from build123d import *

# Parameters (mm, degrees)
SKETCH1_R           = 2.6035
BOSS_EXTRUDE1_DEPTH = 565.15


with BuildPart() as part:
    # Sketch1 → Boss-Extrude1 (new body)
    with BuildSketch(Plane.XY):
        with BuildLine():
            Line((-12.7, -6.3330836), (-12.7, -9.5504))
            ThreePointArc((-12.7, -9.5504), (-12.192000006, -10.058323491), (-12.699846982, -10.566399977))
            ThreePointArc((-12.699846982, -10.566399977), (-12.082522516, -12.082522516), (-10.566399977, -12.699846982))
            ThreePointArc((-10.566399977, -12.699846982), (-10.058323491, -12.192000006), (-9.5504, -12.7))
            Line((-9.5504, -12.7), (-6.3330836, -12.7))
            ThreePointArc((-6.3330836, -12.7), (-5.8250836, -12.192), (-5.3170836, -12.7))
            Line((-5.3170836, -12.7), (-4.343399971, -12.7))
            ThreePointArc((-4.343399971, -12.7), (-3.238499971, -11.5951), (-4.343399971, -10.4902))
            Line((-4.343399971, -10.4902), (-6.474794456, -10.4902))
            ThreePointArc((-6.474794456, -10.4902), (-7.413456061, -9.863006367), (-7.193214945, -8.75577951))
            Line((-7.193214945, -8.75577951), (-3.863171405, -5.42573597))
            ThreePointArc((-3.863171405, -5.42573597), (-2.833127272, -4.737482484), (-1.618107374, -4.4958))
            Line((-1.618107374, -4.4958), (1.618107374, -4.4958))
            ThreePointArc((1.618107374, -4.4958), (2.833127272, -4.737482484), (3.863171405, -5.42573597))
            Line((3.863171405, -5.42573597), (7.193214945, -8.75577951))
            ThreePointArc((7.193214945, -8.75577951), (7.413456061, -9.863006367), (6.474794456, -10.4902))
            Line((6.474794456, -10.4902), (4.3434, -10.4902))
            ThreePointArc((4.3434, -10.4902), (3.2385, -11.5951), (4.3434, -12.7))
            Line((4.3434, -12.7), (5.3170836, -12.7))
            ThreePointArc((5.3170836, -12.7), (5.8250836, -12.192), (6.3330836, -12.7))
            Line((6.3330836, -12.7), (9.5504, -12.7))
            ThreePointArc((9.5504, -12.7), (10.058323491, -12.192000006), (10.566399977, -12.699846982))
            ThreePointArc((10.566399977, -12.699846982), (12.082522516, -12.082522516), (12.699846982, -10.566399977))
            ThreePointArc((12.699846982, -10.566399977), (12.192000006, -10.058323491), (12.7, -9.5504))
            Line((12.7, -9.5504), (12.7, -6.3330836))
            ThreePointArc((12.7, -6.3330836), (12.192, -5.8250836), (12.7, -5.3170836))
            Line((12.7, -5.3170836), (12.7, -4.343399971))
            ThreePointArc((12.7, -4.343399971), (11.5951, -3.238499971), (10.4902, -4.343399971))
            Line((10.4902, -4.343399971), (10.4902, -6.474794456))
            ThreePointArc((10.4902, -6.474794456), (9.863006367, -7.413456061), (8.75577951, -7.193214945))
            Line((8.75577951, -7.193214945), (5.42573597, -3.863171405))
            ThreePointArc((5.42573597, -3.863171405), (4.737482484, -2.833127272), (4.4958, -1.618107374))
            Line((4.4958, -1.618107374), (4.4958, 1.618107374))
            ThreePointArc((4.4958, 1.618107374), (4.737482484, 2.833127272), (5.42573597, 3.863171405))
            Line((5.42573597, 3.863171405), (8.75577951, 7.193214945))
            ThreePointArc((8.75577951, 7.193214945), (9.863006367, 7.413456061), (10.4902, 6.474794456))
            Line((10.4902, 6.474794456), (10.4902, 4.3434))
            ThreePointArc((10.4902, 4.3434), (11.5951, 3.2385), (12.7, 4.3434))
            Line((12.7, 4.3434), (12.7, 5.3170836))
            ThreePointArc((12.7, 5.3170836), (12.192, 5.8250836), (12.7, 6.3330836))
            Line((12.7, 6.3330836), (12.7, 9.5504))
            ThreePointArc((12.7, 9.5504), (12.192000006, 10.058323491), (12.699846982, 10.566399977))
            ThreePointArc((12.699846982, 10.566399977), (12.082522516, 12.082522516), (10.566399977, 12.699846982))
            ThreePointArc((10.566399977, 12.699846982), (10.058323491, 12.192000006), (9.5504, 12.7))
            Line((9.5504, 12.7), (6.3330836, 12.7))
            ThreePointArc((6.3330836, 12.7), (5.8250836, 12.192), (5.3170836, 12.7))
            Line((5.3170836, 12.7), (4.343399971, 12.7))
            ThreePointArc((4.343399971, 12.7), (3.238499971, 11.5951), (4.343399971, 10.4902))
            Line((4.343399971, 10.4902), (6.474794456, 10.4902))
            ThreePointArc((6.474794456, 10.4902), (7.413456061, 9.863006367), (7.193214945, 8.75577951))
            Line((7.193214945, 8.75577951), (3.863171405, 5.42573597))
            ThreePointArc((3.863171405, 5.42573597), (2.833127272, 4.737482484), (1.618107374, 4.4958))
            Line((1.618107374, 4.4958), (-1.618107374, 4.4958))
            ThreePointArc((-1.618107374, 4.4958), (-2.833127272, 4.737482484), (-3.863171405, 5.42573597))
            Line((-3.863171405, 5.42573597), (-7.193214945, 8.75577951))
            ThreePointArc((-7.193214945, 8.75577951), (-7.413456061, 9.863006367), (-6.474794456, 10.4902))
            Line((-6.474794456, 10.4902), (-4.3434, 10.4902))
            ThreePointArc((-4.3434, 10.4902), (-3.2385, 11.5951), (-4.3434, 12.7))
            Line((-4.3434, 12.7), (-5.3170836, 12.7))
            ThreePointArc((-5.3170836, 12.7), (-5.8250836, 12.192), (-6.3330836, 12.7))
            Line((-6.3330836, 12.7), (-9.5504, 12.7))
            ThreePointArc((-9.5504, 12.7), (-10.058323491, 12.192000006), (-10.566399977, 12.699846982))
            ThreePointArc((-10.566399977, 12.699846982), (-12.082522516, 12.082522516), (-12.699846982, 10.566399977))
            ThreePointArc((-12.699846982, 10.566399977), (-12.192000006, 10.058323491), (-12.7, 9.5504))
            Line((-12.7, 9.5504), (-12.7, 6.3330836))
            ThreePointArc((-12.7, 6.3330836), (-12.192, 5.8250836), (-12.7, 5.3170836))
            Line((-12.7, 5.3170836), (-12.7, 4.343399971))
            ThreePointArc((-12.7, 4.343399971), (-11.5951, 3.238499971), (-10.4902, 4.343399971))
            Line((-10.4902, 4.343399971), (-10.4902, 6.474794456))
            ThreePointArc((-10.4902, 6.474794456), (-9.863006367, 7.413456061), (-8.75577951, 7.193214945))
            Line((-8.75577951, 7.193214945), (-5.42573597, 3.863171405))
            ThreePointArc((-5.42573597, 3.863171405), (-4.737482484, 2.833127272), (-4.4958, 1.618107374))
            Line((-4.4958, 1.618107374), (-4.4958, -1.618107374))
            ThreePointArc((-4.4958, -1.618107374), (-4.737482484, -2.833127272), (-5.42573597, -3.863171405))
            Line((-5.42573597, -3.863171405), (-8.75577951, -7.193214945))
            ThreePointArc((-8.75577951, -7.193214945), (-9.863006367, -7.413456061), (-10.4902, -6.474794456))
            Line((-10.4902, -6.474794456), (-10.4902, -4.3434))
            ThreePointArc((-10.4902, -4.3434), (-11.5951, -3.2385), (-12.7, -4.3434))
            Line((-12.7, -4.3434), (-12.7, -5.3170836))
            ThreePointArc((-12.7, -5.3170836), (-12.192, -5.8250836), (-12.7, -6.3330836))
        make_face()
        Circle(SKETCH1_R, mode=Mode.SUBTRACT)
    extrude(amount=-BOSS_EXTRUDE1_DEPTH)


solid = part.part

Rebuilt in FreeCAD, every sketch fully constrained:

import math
import FreeCAD as App
import Part
import Sketcher

V = App.Vector
Q = App.Units.Quantity

doc = App.newDocument("Part")
body = doc.addObject("PartDesign::Body", "Body")

sketch1 = body.newObject("Sketcher::SketchObject", "Sketch")
sketch1.AttachmentSupport = (doc.getObject("XY_Plane"), [""])
sketch1.MapMode = "FlatFace"
sketch1.addGeometry([
    Part.LineSegment(V(-12.7, -6.333084, 0), V(-12.7, -9.5504, 0)),
    Part.ArcOfCircle(Part.Circle(V(-12.7, -10.0584, 0), V(0, 0, 1), 0.508), math.radians(-89.982742), math.radians(90)),
    Part.ArcOfCircle(Part.Circle(V(-10.5918, -10.5918, 0), V(0, 0, 1), 2.1082), math.radians(179.309672), math.radians(270.690328)),
    Part.ArcOfCircle(Part.Circle(V(-10.0584, -12.7, 0), V(0, 0, 1), 0.508), math.radians(0), math.radians(179.982742)),
    Part.LineSegment(V(-9.5504, -12.7, 0), V(-6.333084, -12.7, 0)),
    Part.ArcOfCircle(Part.Circle(V(-5.825084, -12.7, 0), V(0, 0, 1), 0.508), math.radians(0), math.radians(180)),
    Part.LineSegment(V(-5.317084, -12.7, 0), V(-4.3434, -12.7, 0)),
    Part.ArcOfCircle(Part.Circle(V(-4.3434, -11.5951, 0), V(0, 0, 1), 1.1049), math.radians(-90), math.radians(90)),
    Part.LineSegment(V(-4.3434, -10.4902, 0), V(-6.474794, -10.4902, 0)),
    Part.ArcOfCircle(Part.Circle(V(-6.474794, -9.4742, 0), V(0, 0, 1), 1.016), math.radians(135), math.radians(270)),
    Part.LineSegment(V(-7.193215, -8.75578, 0), V(-3.863171, -5.425736, 0)),
    Part.ArcOfCircle(Part.Circle(V(-1.618107, -7.6708, 0), V(0, 0, 1), 3.175), math.radians(90), math.radians(135)),
    Part.LineSegment(V(-1.618107, -4.4958, 0), V(1.618107, -4.4958, 0)),
    Part.ArcOfCircle(Part.Circle(V(1.618107, -7.6708, 0), V(0, 0, 1), 3.175), math.radians(45), math.radians(90)),
    Part.LineSegment(V(3.863171, -5.425736, 0), V(7.193215, -8.75578, 0)),
    Part.ArcOfCircle(Part.Circle(V(6.474794, -9.4742, 0), V(0, 0, 1), 1.016), math.radians(-90), math.radians(45)),
    Part.LineSegment(V(6.474794, -10.4902, 0), V(4.3434, -10.4902, 0)),
    Part.ArcOfCircle(Part.Circle(V(4.3434, -11.5951, 0), V(0, 0, 1), 1.1049), math.radians(90), math.radians(270)),
    Part.LineSegment(V(4.3434, -12.7, 0), V(5.317084, -12.7, 0)),
    Part.ArcOfCircle(Part.Circle(V(5.825084, -12.7, 0), V(0, 0, 1), 0.508), math.radians(0), math.radians(180)),
    Part.LineSegment(V(6.333084, -12.7, 0), V(9.5504, -12.7, 0)),
    Part.ArcOfCircle(Part.Circle(V(10.0584, -12.7, 0), V(0, 0, 1), 0.508), math.radians(0.017258), math.radians(180)),
    Part.ArcOfCircle(Part.Circle(V(10.5918, -10.5918, 0), V(0, 0, 1), 2.1082), math.radians(-90.690328), math.radians(0.690328)),
    Part.ArcOfCircle(Part.Circle(V(12.7, -10.0584, 0), V(0, 0, 1), 0.508), math.radians(90), math.radians(269.982742)),
    Part.LineSegment(V(12.7, -9.5504, 0), V(12.7, -6.333084, 0)),
    Part.ArcOfCircle(Part.Circle(V(12.7, -5.825084, 0), V(0, 0, 1), 0.508), math.radians(90), math.radians(270)),
    Part.LineSegment(V(12.7, -5.317084, 0), V(12.7, -4.3434, 0)),
    Part.ArcOfCircle(Part.Circle(V(11.5951, -4.3434, 0), V(0, 0, 1), 1.1049), math.radians(0), math.radians(180)),
    Part.LineSegment(V(10.4902, -4.3434, 0), V(10.4902, -6.474794, 0)),
    Part.ArcOfCircle(Part.Circle(V(9.4742, -6.474794, 0), V(0, 0, 1), 1.016), math.radians(-135), math.radians(0)),
    Part.LineSegment(V(8.75578, -7.193215, 0), V(5.425736, -3.863171, 0)),
    Part.ArcOfCircle(Part.Circle(V(7.6708, -1.618107, 0), V(0, 0, 1), 3.175), math.radians(180), math.radians(225)),
    Part.LineSegment(V(4.4958, -1.618107, 0), V(4.4958, 1.618107, 0)),
    Part.ArcOfCircle(Part.Circle(V(7.6708, 1.618107, 0), V(0, 0, 1), 3.175), math.radians(135), math.radians(180)),
    Part.LineSegment(V(5.425736, 3.863171, 0), V(8.75578, 7.193215, 0)),
    Part.ArcOfCircle(Part.Circle(V(9.4742, 6.474794, 0), V(0, 0, 1), 1.016), math.radians(0), math.radians(135)),
    Part.LineSegment(V(10.4902, 6.474794, 0), V(10.4902, 4.3434, 0)),
    Part.ArcOfCircle(Part.Circle(V(11.5951, 4.3434, 0), V(0, 0, 1), 1.1049), math.radians(180), math.radians(360)),
    Part.LineSegment(V(12.7, 4.3434, 0), V(12.7, 5.317084, 0)),
    Part.ArcOfCircle(Part.Circle(V(12.7, 5.825084, 0), V(0, 0, 1), 0.508), math.radians(90), math.radians(270)),
    Part.LineSegment(V(12.7, 6.333084, 0), V(12.7, 9.5504, 0)),
    Part.ArcOfCircle(Part.Circle(V(12.7, 10.0584, 0), V(0, 0, 1), 0.508), math.radians(90.017258), math.radians(270)),
    Part.ArcOfCircle(Part.Circle(V(10.5918, 10.5918, 0), V(0, 0, 1), 2.1082), math.radians(-0.690328), math.radians(90.690328)),
    Part.ArcOfCircle(Part.Circle(V(10.0584, 12.7, 0), V(0, 0, 1), 0.508), math.radians(180), math.radians(359.982742)),
    Part.LineSegment(V(9.5504, 12.7, 0), V(6.333084, 12.7, 0)),
    Part.ArcOfCircle(Part.Circle(V(5.825084, 12.7, 0), V(0, 0, 1), 0.508), math.radians(180), math.radians(360)),
    Part.LineSegment(V(5.317084, 12.7, 0), V(4.3434, 12.7, 0)),
    Part.ArcOfCircle(Part.Circle(V(4.3434, 11.5951, 0), V(0, 0, 1), 1.1049), math.radians(90), math.radians(270)),
    Part.LineSegment(V(4.3434, 10.4902, 0), V(6.474794, 10.4902, 0)),
    Part.ArcOfCircle(Part.Circle(V(6.474794, 9.4742, 0), V(0, 0, 1), 1.016), math.radians(-45), math.radians(90)),
    Part.LineSegment(V(7.193215, 8.75578, 0), V(3.863171, 5.425736, 0)),
    Part.ArcOfCircle(Part.Circle(V(1.618107, 7.6708, 0), V(0, 0, 1), 3.175), math.radians(-90), math.radians(-45)),
    Part.LineSegment(V(1.618107, 4.4958, 0), V(-1.618107, 4.4958, 0)),
    Part.ArcOfCircle(Part.Circle(V(-1.618107, 7.6708, 0), V(0, 0, 1), 3.175), math.radians(-135), math.radians(-90)),
    Part.LineSegment(V(-3.863171, 5.425736, 0), V(-7.193215, 8.75578, 0)),
    Part.ArcOfCircle(Part.Circle(V(-6.474794, 9.4742, 0), V(0, 0, 1), 1.016), math.radians(90), math.radians(225)),
    Part.LineSegment(V(-6.474794, 10.4902, 0), V(-4.3434, 10.4902, 0)),
    Part.ArcOfCircle(Part.Circle(V(-4.3434, 11.5951, 0), V(0, 0, 1), 1.1049), math.radians(-90), math.radians(90)),
    Part.LineSegment(V(-4.3434, 12.7, 0), V(-5.317084, 12.7, 0)),
    Part.ArcOfCircle(Part.Circle(V(-5.825084, 12.7, 0), V(0, 0, 1), 0.508), math.radians(180), math.radians(360)),
    Part.LineSegment(V(-6.333084, 12.7, 0), V(-9.5504, 12.7, 0)),
    Part.ArcOfCircle(Part.Circle(V(-10.0584, 12.7, 0), V(0, 0, 1), 0.508), math.radians(-179.982742), math.radians(0)),
    Part.ArcOfCircle(Part.Circle(V(-10.5918, 10.5918, 0), V(0, 0, 1), 2.1082), math.radians(89.309672), math.radians(180.690328)),
    Part.ArcOfCircle(Part.Circle(V(-12.7, 10.0584, 0), V(0, 0, 1), 0.508), math.radians(-90), math.radians(89.982742)),
    Part.LineSegment(V(-12.7, 9.5504, 0), V(-12.7, 6.333084, 0)),
    Part.ArcOfCircle(Part.Circle(V(-12.7, 5.825084, 0), V(0, 0, 1), 0.508), math.radians(-90), math.radians(90)),
    Part.LineSegment(V(-12.7, 5.317084, 0), V(-12.7, 4.3434, 0)),
    Part.ArcOfCircle(Part.Circle(V(-11.5951, 4.3434, 0), V(0, 0, 1), 1.1049), math.radians(180), math.radians(360)),
    Part.LineSegment(V(-10.4902, 4.3434, 0), V(-10.4902, 6.474794, 0)),
    Part.ArcOfCircle(Part.Circle(V(-9.4742, 6.474794, 0), V(0, 0, 1), 1.016), math.radians(45), math.radians(180)),
    Part.LineSegment(V(-8.75578, 7.193215, 0), V(-5.425736, 3.863171, 0)),
    Part.ArcOfCircle(Part.Circle(V(-7.6708, 1.618107, 0), V(0, 0, 1), 3.175), math.radians(0), math.radians(45)),
    Part.LineSegment(V(-4.4958, 1.618107, 0), V(-4.4958, -1.618107, 0)),
    Part.ArcOfCircle(Part.Circle(V(-7.6708, -1.618107, 0), V(0, 0, 1), 3.175), math.radians(-45), math.radians(0)),
    Part.LineSegment(V(-5.425736, -3.863171, 0), V(-8.75578, -7.193215, 0)),
    Part.ArcOfCircle(Part.Circle(V(-9.4742, -6.474794, 0), V(0, 0, 1), 1.016), math.radians(180), math.radians(315)),
    Part.LineSegment(V(-10.4902, -6.474794, 0), V(-10.4902, -4.3434, 0)),
    Part.ArcOfCircle(Part.Circle(V(-11.5951, -4.3434, 0), V(0, 0, 1), 1.1049), math.radians(0), math.radians(180)),
    Part.LineSegment(V(-12.7, -4.3434, 0), V(-12.7, -5.317084, 0)),
    Part.ArcOfCircle(Part.Circle(V(-12.7, -5.825084, 0), V(0, 0, 1), 0.508), math.radians(-90), math.radians(90)),
    Part.Circle(V(0, 0, 0), V(0, 0, 1), 2.6035),
], False)
sketch1.addConstraint([
    Sketcher.Constraint("Coincident", 0, 2, 1, 2),
    Sketcher.Constraint("Coincident", 1, 1, 2, 1),
    Sketcher.Constraint("Coincident", 2, 2, 3, 2),
    Sketcher.Constraint("Coincident", 3, 1, 4, 1),
    Sketcher.Constraint("Coincident", 4, 2, 5, 2),
    Sketcher.Constraint("Coincident", 5, 1, 6, 1),
    Sketcher.Constraint("Tangent", 6, 2, 7, 1),
    Sketcher.Constraint("Tangent", 7, 2, 8, 1),
    Sketcher.Constraint("Tangent", 8, 2, 9, 2),
    Sketcher.Constraint("Tangent", 9, 1, 10, 1),
    Sketcher.Constraint("Tangent", 10, 2, 11, 2),
    Sketcher.Constraint("Tangent", 11, 1, 12, 1),
    Sketcher.Constraint("Tangent", 12, 2, 13, 2),
    Sketcher.Constraint("Tangent", 13, 1, 14, 1),
    Sketcher.Constraint("Tangent", 14, 2, 15, 2),
    Sketcher.Constraint("Tangent", 15, 1, 16, 1),
    Sketcher.Constraint("Tangent", 16, 2, 17, 1),
    Sketcher.Constraint("Tangent", 17, 2, 18, 1),
    Sketcher.Constraint("Coincident", 18, 2, 19, 2),
    Sketcher.Constraint("Coincident", 19, 1, 20, 1),
    Sketcher.Constraint("Coincident", 20, 2, 21, 2),
    Sketcher.Constraint("Coincident", 21, 1, 22, 1),
    Sketcher.Constraint("Coincident", 22, 2, 23, 2),
    Sketcher.Constraint("Coincident", 23, 1, 24, 1),
    Sketcher.Constraint("Coincident", 24, 2, 25, 2),
    Sketcher.Constraint("Coincident", 25, 1, 26, 1),
    Sketcher.Constraint("Tangent", 26, 2, 27, 1),
    Sketcher.Constraint("Tangent", 27, 2, 28, 1),
    Sketcher.Constraint("Tangent", 28, 2, 29, 2),
    Sketcher.Constraint("Tangent", 29, 1, 30, 1),
    Sketcher.Constraint("Tangent", 30, 2, 31, 2),
    Sketcher.Constraint("Tangent", 31, 1, 32, 1),
    Sketcher.Constraint("Tangent", 32, 2, 33, 2),
    Sketcher.Constraint("Tangent", 33, 1, 34, 1),
    Sketcher.Constraint("Tangent", 34, 2, 35, 2),
    Sketcher.Constraint("Tangent", 35, 1, 36, 1),
    Sketcher.Constraint("Tangent", 36, 2, 37, 1),
    Sketcher.Constraint("Tangent", 37, 2, 38, 1),
    Sketcher.Constraint("Coincident", 38, 2, 39, 2),
    Sketcher.Constraint("Coincident", 39, 1, 40, 1),
    Sketcher.Constraint("Coincident", 40, 2, 41, 2),
    Sketcher.Constraint("Coincident", 41, 1, 42, 1),
    Sketcher.Constraint("Coincident", 42, 2, 43, 2),
    Sketcher.Constraint("Coincident", 43, 1, 44, 1),
    Sketcher.Constraint("Coincident", 44, 2, 45, 2),
    Sketcher.Constraint("Coincident", 45, 1, 46, 1),
    Sketcher.Constraint("Tangent", 46, 2, 47, 1),
    Sketcher.Constraint("Tangent", 47, 2, 48, 1),
    Sketcher.Constraint("Tangent", 48, 2, 49, 2),
    Sketcher.Constraint("Tangent", 49, 1, 50, 1),
    Sketcher.Constraint("Tangent", 50, 2, 51, 2),
    Sketcher.Constraint("Tangent", 51, 1, 52, 1),
    Sketcher.Constraint("Tangent", 52, 2, 53, 2),
    Sketcher.Constraint("Tangent", 53, 1, 54, 1),
    Sketcher.Constraint("Tangent", 54, 2, 55, 2),
    Sketcher.Constraint("Tangent", 55, 1, 56, 1),
    Sketcher.Constraint("Tangent", 56, 2, 57, 1),
    Sketcher.Constraint("Tangent", 57, 2, 58, 1),
    Sketcher.Constraint("Coincident", 58, 2, 59, 2),
    Sketcher.Constraint("Coincident", 59, 1, 60, 1),
    Sketcher.Constraint("Coincident", 60, 2, 61, 2),
    Sketcher.Constraint("Coincident", 61, 1, 62, 1),
    Sketcher.Constraint("Coincident", 62, 2, 63, 2),
    Sketcher.Constraint("Coincident", 63, 1, 64, 1),
    Sketcher.Constraint("Coincident", 64, 2, 65, 2),
    Sketcher.Constraint("Coincident", 65, 1, 66, 1),
    Sketcher.Constraint("Tangent", 66, 2, 67, 1),
    Sketcher.Constraint("Tangent", 67, 2, 68, 1),
    Sketcher.Constraint("Tangent", 68, 2, 69, 2),
    Sketcher.Constraint("Tangent", 69, 1, 70, 1),
    Sketcher.Constraint("Tangent", 70, 2, 71, 2),
    Sketcher.Constraint("Tangent", 71, 1, 72, 1),
    Sketcher.Constraint("Tangent", 72, 2, 73, 2),
    Sketcher.Constraint("Tangent", 73, 1, 74, 1),
    Sketcher.Constraint("Tangent", 74, 2, 75, 2),
    Sketcher.Constraint("Tangent", 75, 1, 76, 1),
    Sketcher.Constraint("Tangent", 76, 2, 77, 1),
    Sketcher.Constraint("Tangent", 77, 2, 78, 1),
    Sketcher.Constraint("Coincident", 78, 2, 79, 2),
    Sketcher.Constraint("Coincident", 79, 1, 0, 1),
    Sketcher.Constraint("Vertical", 0),
    Sketcher.Constraint("Horizontal", 4),
    Sketcher.Constraint("Horizontal", 6),
    Sketcher.Constraint("Horizontal", 8),
    Sketcher.Constraint("Horizontal", 12),
    Sketcher.Constraint("Horizontal", 16),
    Sketcher.Constraint("Horizontal", 18),
    Sketcher.Constraint("Horizontal", 20),
    Sketcher.Constraint("Vertical", 24),
    Sketcher.Constraint("Vertical", 26),
    Sketcher.Constraint("Vertical", 28),
    Sketcher.Constraint("Vertical", 32),
    Sketcher.Constraint("Vertical", 36),
    Sketcher.Constraint("Vertical", 38),
    Sketcher.Constraint("Vertical", 40),
    Sketcher.Constraint("Horizontal", 44),
    Sketcher.Constraint("Horizontal", 46),
    Sketcher.Constraint("Horizontal", 48),
    Sketcher.Constraint("Horizontal", 52),
    Sketcher.Constraint("Horizontal", 56),
    Sketcher.Constraint("Horizontal", 58),
    Sketcher.Constraint("Horizontal", 60),
    Sketcher.Constraint("Vertical", 64),
    Sketcher.Constraint("Vertical", 66),
    Sketcher.Constraint("Vertical", 68),
    Sketcher.Constraint("Vertical", 72),
    Sketcher.Constraint("Vertical", 76),
    Sketcher.Constraint("Vertical", 78),
    Sketcher.Constraint("Coincident", 80, 3, -1, 1),
    Sketcher.Constraint("Equal", 1, 3),
    Sketcher.Constraint("Equal", 3, 5),
    Sketcher.Constraint("Equal", 11, 13),
    Sketcher.Constraint("Equal", 9, 15),
    Sketcher.Constraint("Equal", 7, 17),
    Sketcher.Constraint("Equal", 5, 19),
    Sketcher.Constraint("Equal", 19, 21),
    Sketcher.Constraint("Equal", 2, 22),
    Sketcher.Constraint("Equal", 21, 23),
    Sketcher.Constraint("Equal", 23, 25),
    Sketcher.Constraint("Equal", 17, 27),
    Sketcher.Constraint("Equal", 15, 29),
    Sketcher.Constraint("Equal", 13, 31),
    Sketcher.Constraint("Equal", 31, 33),
    Sketcher.Constraint("Equal", 29, 35),
    Sketcher.Constraint("Equal", 27, 37),
    Sketcher.Constraint("Equal", 25, 39),
    Sketcher.Constraint("Equal", 39, 41),
    Sketcher.Constraint("Equal", 22, 42),
    Sketcher.Constraint("Equal", 41, 43),
    Sketcher.Constraint("Equal", 43, 45),
    Sketcher.Constraint("Equal", 37, 47),
    Sketcher.Constraint("Equal", 35, 49),
    Sketcher.Constraint("Equal", 33, 51),
    Sketcher.Constraint("Equal", 51, 53),
    Sketcher.Constraint("Equal", 49, 55),
    Sketcher.Constraint("Equal", 47, 57),
    Sketcher.Constraint("Equal", 45, 59),
    Sketcher.Constraint("Equal", 59, 61),
    Sketcher.Constraint("Equal", 42, 62),
    Sketcher.Constraint("Equal", 61, 63),
    Sketcher.Constraint("Equal", 63, 65),
    Sketcher.Constraint("Equal", 57, 67),
    Sketcher.Constraint("Equal", 55, 69),
    Sketcher.Constraint("Equal", 53, 71),
    Sketcher.Constraint("Equal", 71, 73),
    Sketcher.Constraint("Equal", 69, 75),
    Sketcher.Constraint("Equal", 67, 77),
    Sketcher.Constraint("Equal", 65, 79),
    Sketcher.Constraint("Symmetric", 1, 3, 41, 3, -1, 1),
    Sketcher.Constraint("Symmetric", 2, 3, 42, 3, -1, 1),
    Sketcher.Constraint("Symmetric", 3, 3, 43, 3, -1, 1),
    Sketcher.Constraint("Symmetric", 5, 3, 45, 3, -1, 1),
    Sketcher.Constraint("Symmetric", 7, 3, 47, 3, -1, 1),
    Sketcher.Constraint("Symmetric", 11, 3, 51, 3, -1, 1),
    Sketcher.Constraint("Symmetric", 15, 3, 55, 3, -1, 1),
    Sketcher.Constraint("Symmetric", 19, 3, 59, 3, -1, 1),
    Sketcher.Constraint("Symmetric", 21, 3, 61, 3, -1, 1),
    Sketcher.Constraint("Symmetric", 22, 3, 62, 3, -1, 1),
    Sketcher.Constraint("Symmetric", 23, 3, 63, 3, -1, 1),
    Sketcher.Constraint("Symmetric", 25, 3, 65, 3, -1, 1),
    Sketcher.Constraint("Symmetric", 27, 3, 67, 3, -1, 1),
    Sketcher.Constraint("Symmetric", 31, 3, 71, 3, -1, 1),
    Sketcher.Constraint("Symmetric", 35, 3, 75, 3, -1, 1),
    Sketcher.Constraint("Symmetric", 39, 3, 79, 3, -1, 1),
    Sketcher.Constraint("Symmetric", 9, 3, 15, 3, -2),
    Sketcher.Constraint("Symmetric", 5, 3, 19, 3, -2),
    Sketcher.Constraint("Symmetric", 3, 3, 21, 3, -2),
    Sketcher.Constraint("Symmetric", 2, 3, 22, 3, -2),
    Sketcher.Constraint("Symmetric", 1, 3, 23, 3, -2),
    Sketcher.Constraint("Symmetric", 39, 3, 65, 3, -2),
    Sketcher.Constraint("Symmetric", 37, 3, 67, 3, -2),
    Sketcher.Constraint("Symmetric", 50, 2, 53, 1, -2),
    Sketcher.Constraint("Symmetric", 34, 2, 69, 1, -2),
    Sketcher.Constraint("Symmetric", 30, 2, 73, 1, -2),
    Sketcher.Constraint("Perpendicular", 10, 14),
    Sketcher.Constraint("Parallel", 14, 30),
    Sketcher.Constraint("Perpendicular", 30, 34),
    Sketcher.Constraint("Horizontal", 3, 3, 5, 3),
    Sketcher.Constraint("Horizontal", 27, 3, 77, 3),
    Sketcher.Constraint("Horizontal", 21, 3, 3, 1),
    Sketcher.Constraint("Horizontal", 4, 2, 5, 1),
    Sketcher.Constraint("Horizontal", 18, 2, 19, 1),
    Sketcher.Constraint("Horizontal", 61, 3, 43, 1),
    Sketcher.Constraint("Horizontal", 58, 2, 59, 1),
    Sketcher.Constraint("Vertical", 23, 3, 25, 3),
    Sketcher.Constraint("Vertical", 17, 3, 47, 3),
    Sketcher.Constraint("Vertical", 7, 3, 57, 3),
    Sketcher.Constraint("Vertical", 79, 3, 0, 2),
    Sketcher.Constraint("Vertical", 41, 3, 23, 1),
    Sketcher.Constraint("Vertical", 24, 2, 25, 1),
    Sketcher.Constraint("Vertical", 38, 2, 39, 1),
    Sketcher.Constraint("Vertical", 0, 2, 63, 1),
    Sketcher.Constraint("Equal", 60, 0),
    Sketcher.Constraint("Equal", 58, 26),
    Sketcher.Constraint("Equal", 56, 28),
    Sketcher.Constraint("Equal", 52, 32),
    Sketcher.Constraint("Equal", 14, 30),
    Sketcher.Constraint("Radius", 1, Q("0.02 in")),
    Sketcher.Constraint("Radius", 9, Q("0.04 in")),
    Sketcher.Constraint("Diameter", 80, Q("0.205 in")),
    Sketcher.Constraint("Radius", 2, Q("0.083 in")),
    Sketcher.Constraint("Radius", 11, Q("0.125 in")),
    Sketcher.Constraint("DistanceX", 1, 3, -1, 1, Q("0.5 in")),
    Sketcher.Constraint("DistanceY", 3, 3, -1, 1, Q("0.5 in")),
    Sketcher.Constraint("Radius", 7, Q("0.0435 in")),
    Sketcher.Constraint("DistanceY", 1, 3, -1, 1, Q("0.396 in")),
    Sketcher.Constraint("DistanceX", 2, 3, -1, 1, Q("0.417 in")),
    Sketcher.Constraint("DistanceY", 2, 3, -1, 1, Q("0.417 in")),
    Sketcher.Constraint("DistanceX", 7, 3, -1, 1, Q("0.171 in")),
    Sketcher.Constraint("DistanceY", 11, 3, -1, 1, Q("0.302 in")),
    Sketcher.Constraint("DistanceX", 4, 1, 4, 2, 3.217316),
    Sketcher.Constraint("DistanceX", 8, 2, 8, 1, 2.131394),
])
pad1 = body.newObject("PartDesign::Pad", "Pad")
pad1.Profile = sketch1
pad1.Length = Q("22.25 in")
pad1.Reversed = True

doc.recompute()
